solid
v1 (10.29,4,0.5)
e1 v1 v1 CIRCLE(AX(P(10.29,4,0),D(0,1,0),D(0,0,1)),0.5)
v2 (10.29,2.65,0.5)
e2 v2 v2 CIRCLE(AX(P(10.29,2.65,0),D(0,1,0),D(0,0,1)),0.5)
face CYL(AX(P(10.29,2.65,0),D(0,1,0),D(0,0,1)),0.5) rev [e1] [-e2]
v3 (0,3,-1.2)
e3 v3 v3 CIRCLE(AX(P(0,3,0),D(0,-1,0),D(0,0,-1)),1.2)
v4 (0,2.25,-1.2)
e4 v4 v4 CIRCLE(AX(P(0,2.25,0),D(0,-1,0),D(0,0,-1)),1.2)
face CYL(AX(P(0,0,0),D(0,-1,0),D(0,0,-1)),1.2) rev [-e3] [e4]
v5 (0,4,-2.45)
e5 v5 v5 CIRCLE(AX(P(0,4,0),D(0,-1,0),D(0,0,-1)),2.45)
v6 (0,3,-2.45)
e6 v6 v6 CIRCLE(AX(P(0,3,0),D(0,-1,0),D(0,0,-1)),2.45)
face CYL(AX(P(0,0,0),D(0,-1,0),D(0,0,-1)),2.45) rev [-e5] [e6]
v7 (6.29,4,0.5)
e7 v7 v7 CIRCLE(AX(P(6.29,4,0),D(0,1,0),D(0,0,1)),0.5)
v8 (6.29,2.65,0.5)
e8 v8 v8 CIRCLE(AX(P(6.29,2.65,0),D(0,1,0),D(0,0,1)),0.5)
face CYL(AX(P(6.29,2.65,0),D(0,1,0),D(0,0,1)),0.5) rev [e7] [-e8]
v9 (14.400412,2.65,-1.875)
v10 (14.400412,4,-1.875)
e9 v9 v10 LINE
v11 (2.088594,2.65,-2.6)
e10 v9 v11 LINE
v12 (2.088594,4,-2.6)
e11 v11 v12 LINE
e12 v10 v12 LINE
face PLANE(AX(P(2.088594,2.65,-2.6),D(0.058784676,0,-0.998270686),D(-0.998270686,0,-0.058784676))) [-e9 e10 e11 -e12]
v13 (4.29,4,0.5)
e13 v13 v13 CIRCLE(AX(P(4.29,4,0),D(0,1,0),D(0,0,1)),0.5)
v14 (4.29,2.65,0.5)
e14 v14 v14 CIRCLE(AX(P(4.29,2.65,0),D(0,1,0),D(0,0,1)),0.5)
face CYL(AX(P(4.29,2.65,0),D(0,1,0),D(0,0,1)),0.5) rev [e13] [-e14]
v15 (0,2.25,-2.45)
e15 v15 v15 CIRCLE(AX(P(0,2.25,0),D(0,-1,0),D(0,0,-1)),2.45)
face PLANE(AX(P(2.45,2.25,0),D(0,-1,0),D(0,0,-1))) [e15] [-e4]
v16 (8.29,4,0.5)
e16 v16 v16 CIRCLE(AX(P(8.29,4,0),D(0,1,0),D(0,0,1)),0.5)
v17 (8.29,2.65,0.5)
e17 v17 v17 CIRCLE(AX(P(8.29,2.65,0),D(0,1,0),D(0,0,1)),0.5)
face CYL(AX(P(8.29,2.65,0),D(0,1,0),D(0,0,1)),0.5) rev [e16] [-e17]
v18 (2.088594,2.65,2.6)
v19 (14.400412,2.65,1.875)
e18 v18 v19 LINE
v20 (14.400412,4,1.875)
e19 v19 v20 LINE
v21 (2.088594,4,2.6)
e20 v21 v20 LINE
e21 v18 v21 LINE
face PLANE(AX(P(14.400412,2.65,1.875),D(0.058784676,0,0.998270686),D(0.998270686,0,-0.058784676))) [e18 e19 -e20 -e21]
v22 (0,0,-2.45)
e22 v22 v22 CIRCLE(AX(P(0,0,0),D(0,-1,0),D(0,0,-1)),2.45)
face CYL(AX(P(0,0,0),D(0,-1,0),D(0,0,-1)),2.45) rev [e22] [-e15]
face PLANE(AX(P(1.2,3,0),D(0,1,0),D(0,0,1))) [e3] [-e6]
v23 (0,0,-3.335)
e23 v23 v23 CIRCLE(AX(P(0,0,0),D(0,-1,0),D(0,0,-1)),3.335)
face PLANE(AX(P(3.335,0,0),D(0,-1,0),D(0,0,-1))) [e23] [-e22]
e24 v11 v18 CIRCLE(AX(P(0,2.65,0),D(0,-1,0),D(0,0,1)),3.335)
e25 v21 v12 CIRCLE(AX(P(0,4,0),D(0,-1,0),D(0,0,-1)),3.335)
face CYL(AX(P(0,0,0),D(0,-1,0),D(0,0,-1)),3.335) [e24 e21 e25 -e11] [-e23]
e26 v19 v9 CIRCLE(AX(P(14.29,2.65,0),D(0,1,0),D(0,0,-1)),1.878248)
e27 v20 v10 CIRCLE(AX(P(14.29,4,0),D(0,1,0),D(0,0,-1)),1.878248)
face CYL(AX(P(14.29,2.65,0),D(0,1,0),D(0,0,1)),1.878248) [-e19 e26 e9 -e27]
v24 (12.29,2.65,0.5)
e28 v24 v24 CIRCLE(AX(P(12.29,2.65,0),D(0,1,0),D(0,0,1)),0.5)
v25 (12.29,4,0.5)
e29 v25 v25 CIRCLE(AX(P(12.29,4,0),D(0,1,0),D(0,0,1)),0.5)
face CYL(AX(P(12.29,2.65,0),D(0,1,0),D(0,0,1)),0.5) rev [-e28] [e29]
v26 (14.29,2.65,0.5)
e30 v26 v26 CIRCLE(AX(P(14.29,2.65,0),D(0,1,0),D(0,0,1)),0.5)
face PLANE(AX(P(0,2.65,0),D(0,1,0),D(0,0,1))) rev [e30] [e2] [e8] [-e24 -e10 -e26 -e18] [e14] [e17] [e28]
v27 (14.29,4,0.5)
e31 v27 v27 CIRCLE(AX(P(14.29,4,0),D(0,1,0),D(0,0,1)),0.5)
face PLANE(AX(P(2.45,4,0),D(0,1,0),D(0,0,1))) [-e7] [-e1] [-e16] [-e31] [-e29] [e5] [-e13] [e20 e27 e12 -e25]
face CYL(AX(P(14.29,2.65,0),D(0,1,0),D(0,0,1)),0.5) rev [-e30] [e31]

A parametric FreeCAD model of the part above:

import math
import FreeCAD as App
import Part
import Sketcher

doc = App.newDocument("Part")
body = doc.addObject("PartDesign::Body", "Body")

# Sketch on XY plane
sketch1 = body.newObject("Sketcher::SketchObject", "Sketch")
sketch1.AttachmentSupport = (doc.getObject("XY_Plane"), [""])
sketch1.MapMode = "FlatFace"
sketch1.addGeometry([
    Part.LineSegment(App.Vector(2.5, 2.2, 0), App.Vector(2.5, 0, 0)),  # 0
    Part.LineSegment(App.Vector(2.5, 0, 0), App.Vector(3.3, 0, 0)),  # 1
    Part.LineSegment(App.Vector(3.3, 0, 0), App.Vector(3.3, 4, 0)),  # 2
    Part.LineSegment(App.Vector(3.3, 4, 0), App.Vector(2.5, 4, 0)),  # 3
    Part.LineSegment(App.Vector(2.5, 4, 0), App.Vector(2.5, 3, 0)),  # 4
    Part.LineSegment(App.Vector(2.5, 3, 0), App.Vector(1.2, 3, 0)),  # 5
    Part.LineSegment(App.Vector(1.2, 3, 0), App.Vector(1.2, 2.2, 0)),  # 6
    Part.LineSegment(App.Vector(1.2, 2.2, 0), App.Vector(2.5, 2.2, 0)),  # 7
], False)
sketch1.addConstraint([
    Sketcher.Constraint("Coincident", 0, 2, 1, 1),
    Sketcher.Constraint("Coincident", 1, 2, 2, 1),
    Sketcher.Constraint("Coincident", 2, 2, 3, 1),
    Sketcher.Constraint("Coincident", 3, 2, 4, 1),
    Sketcher.Constraint("Coincident", 4, 2, 5, 1),
    Sketcher.Constraint("Coincident", 5, 2, 6, 1),
    Sketcher.Constraint("Coincident", 6, 2, 7, 1),
    Sketcher.Constraint("Coincident", 7, 2, 0, 1),
    Sketcher.Constraint("Vertical", 0),
    Sketcher.Constraint("Horizontal", 1),
    Sketcher.Constraint("Vertical", 2),
    Sketcher.Constraint("Horizontal", 3),
    Sketcher.Constraint("Vertical", 4),
    Sketcher.Constraint("Horizontal", 5),
    Sketcher.Constraint("Vertical", 6),
    Sketcher.Constraint("Horizontal", 7),
    Sketcher.Constraint("PointOnObject", 0, 2, -1),
    Sketcher.Constraint("Vertical", 0, 2, 3, 2),
    Sketcher.Constraint("DistanceY", 2, 1, 2, 2, 4.0),
    Sketcher.Constraint("DistanceY", 4, 2, 4, 1, 1.0),
    Sketcher.Constraint("DistanceX", 5, 2, 5, 1, 1.25),
    Sketcher.Constraint("DistanceY", 0, 2, 0, 1, 2.25),
    Sketcher.Constraint("DistanceX", -1, 1, 5, 2, 1.2),
    Sketcher.Constraint("DistanceX", 1, 1, 1, 2, 0.885),
])
revolution = body.newObject("PartDesign::Revolution", "Revolution")
revolution.Profile = sketch1
revolution.ReferenceAxis = (sketch1, ["V_Axis"])
revolution.Angle = 360

# Sketch on XZ plane
sketch2 = body.newObject("Sketcher::SketchObject", "Sketch001")
sketch2.AttachmentSupport = (doc.getObject("XZ_Plane"), [""])
sketch2.MapMode = "FlatFace"
sketch2.AttachmentOffset = App.Placement(App.Vector(0, 0, -2.65), App.Rotation())
sketch2.addGeometry([
    Part.LineSegment(App.Vector(14.4, -1.9, 0), App.Vector(2.1, -2.6, 0)),  # 0
    Part.ArcOfCircle(Part.Circle(App.Vector(0, 0, 0), App.Vector(0, 0, 1), 3.3), math.radians(-51), math.radians(51)),  # 1
    Part.LineSegment(App.Vector(2.1, 2.6, 0), App.Vector(14.4, 1.9, 0)),  # 2
    Part.ArcOfCircle(Part.Circle(App.Vector(14.3, 0, 0), App.Vector(0, 0, 1), 1.9), math.radians(-87), math.radians(87)),  # 3
    Part.Circle(App.Vector(14.3, 0, 0), App.Vector(0, 0, 1), 0.5),  # 4
    Part.Circle(App.Vector(12.3, 0, 0), App.Vector(0, 0, 1), 0.5),  # 5
    Part.Circle(App.Vector(10.3, 0, 0), App.Vector(0, 0, 1), 0.5),  # 6
    Part.Circle(App.Vector(8.3, 0, 0), App.Vector(0, 0, 1), 0.5),  # 7
    Part.Circle(App.Vector(6.3, 0, 0), App.Vector(0, 0, 1), 0.5),  # 8
    Part.Circle(App.Vector(4.3, 0, 0), App.Vector(0, 0, 1), 0.5),  # 9
], False)
sketch2.addConstraint([
    Sketcher.Constraint("Coincident", 0, 2, 1, 1),
    Sketcher.Constraint("Coincident", 1, 2, 2, 1),
    Sketcher.Constraint("Tangent", 2, 2, 3, 2),
    Sketcher.Constraint("Tangent", 3, 1, 0, 1),
    Sketcher.Constraint("Coincident", 1, 3, -1, 1),
    Sketcher.Constraint("Coincident", 4, 3, 3, 3),
    Sketcher.Constraint("Equal", 4, 5),
    Sketcher.Constraint("Equal", 5, 6),
    Sketcher.Constraint("Equal", 6, 7),
    Sketcher.Constraint("Equal", 7, 8),
    Sketcher.Constraint("Equal", 8, 9),
    Sketcher.Constraint("Symmetric", 2, 2, 3, 1, -1),
    Sketcher.Constraint("PointOnObject", 5, 3, -1),
    Sketcher.Constraint("PointOnObject", 6, 3, -1),
    Sketcher.Constraint("PointOnObject", 7, 3, -1),
    Sketcher.Constraint("PointOnObject", 8, 3, -1),
    Sketcher.Constraint("PointOnObject", 9, 3, -1),
    Sketcher.Constraint("Diameter", 4, 1.0),
    Sketcher.Constraint("Radius", 1, 3.335),
    Sketcher.Constraint("DistanceX", 5, 3, 3, 3, 2.0),
    Sketcher.Constraint("DistanceX", 6, 3, 5, 3, 2.0),
    Sketcher.Constraint("DistanceX", 7, 3, 6, 3, 2.0),
    Sketcher.Constraint("DistanceX", 8, 3, 7, 3, 2.0),
    Sketcher.Constraint("DistanceX", 9, 3, 8, 3, 2.0),
    Sketcher.Constraint("DistanceY", 0, 2, -1, 1, 2.6),
    Sketcher.Constraint("DistanceX", -1, 1, 3, 3, 14.29),
    Sketcher.Constraint("Radius", 3, 1.878248),
])
pad1 = body.newObject("PartDesign::Pad", "Pad")
pad1.Profile = sketch2
pad1.Length = 1.35
pad1.Reversed = True

doc.recompute()
